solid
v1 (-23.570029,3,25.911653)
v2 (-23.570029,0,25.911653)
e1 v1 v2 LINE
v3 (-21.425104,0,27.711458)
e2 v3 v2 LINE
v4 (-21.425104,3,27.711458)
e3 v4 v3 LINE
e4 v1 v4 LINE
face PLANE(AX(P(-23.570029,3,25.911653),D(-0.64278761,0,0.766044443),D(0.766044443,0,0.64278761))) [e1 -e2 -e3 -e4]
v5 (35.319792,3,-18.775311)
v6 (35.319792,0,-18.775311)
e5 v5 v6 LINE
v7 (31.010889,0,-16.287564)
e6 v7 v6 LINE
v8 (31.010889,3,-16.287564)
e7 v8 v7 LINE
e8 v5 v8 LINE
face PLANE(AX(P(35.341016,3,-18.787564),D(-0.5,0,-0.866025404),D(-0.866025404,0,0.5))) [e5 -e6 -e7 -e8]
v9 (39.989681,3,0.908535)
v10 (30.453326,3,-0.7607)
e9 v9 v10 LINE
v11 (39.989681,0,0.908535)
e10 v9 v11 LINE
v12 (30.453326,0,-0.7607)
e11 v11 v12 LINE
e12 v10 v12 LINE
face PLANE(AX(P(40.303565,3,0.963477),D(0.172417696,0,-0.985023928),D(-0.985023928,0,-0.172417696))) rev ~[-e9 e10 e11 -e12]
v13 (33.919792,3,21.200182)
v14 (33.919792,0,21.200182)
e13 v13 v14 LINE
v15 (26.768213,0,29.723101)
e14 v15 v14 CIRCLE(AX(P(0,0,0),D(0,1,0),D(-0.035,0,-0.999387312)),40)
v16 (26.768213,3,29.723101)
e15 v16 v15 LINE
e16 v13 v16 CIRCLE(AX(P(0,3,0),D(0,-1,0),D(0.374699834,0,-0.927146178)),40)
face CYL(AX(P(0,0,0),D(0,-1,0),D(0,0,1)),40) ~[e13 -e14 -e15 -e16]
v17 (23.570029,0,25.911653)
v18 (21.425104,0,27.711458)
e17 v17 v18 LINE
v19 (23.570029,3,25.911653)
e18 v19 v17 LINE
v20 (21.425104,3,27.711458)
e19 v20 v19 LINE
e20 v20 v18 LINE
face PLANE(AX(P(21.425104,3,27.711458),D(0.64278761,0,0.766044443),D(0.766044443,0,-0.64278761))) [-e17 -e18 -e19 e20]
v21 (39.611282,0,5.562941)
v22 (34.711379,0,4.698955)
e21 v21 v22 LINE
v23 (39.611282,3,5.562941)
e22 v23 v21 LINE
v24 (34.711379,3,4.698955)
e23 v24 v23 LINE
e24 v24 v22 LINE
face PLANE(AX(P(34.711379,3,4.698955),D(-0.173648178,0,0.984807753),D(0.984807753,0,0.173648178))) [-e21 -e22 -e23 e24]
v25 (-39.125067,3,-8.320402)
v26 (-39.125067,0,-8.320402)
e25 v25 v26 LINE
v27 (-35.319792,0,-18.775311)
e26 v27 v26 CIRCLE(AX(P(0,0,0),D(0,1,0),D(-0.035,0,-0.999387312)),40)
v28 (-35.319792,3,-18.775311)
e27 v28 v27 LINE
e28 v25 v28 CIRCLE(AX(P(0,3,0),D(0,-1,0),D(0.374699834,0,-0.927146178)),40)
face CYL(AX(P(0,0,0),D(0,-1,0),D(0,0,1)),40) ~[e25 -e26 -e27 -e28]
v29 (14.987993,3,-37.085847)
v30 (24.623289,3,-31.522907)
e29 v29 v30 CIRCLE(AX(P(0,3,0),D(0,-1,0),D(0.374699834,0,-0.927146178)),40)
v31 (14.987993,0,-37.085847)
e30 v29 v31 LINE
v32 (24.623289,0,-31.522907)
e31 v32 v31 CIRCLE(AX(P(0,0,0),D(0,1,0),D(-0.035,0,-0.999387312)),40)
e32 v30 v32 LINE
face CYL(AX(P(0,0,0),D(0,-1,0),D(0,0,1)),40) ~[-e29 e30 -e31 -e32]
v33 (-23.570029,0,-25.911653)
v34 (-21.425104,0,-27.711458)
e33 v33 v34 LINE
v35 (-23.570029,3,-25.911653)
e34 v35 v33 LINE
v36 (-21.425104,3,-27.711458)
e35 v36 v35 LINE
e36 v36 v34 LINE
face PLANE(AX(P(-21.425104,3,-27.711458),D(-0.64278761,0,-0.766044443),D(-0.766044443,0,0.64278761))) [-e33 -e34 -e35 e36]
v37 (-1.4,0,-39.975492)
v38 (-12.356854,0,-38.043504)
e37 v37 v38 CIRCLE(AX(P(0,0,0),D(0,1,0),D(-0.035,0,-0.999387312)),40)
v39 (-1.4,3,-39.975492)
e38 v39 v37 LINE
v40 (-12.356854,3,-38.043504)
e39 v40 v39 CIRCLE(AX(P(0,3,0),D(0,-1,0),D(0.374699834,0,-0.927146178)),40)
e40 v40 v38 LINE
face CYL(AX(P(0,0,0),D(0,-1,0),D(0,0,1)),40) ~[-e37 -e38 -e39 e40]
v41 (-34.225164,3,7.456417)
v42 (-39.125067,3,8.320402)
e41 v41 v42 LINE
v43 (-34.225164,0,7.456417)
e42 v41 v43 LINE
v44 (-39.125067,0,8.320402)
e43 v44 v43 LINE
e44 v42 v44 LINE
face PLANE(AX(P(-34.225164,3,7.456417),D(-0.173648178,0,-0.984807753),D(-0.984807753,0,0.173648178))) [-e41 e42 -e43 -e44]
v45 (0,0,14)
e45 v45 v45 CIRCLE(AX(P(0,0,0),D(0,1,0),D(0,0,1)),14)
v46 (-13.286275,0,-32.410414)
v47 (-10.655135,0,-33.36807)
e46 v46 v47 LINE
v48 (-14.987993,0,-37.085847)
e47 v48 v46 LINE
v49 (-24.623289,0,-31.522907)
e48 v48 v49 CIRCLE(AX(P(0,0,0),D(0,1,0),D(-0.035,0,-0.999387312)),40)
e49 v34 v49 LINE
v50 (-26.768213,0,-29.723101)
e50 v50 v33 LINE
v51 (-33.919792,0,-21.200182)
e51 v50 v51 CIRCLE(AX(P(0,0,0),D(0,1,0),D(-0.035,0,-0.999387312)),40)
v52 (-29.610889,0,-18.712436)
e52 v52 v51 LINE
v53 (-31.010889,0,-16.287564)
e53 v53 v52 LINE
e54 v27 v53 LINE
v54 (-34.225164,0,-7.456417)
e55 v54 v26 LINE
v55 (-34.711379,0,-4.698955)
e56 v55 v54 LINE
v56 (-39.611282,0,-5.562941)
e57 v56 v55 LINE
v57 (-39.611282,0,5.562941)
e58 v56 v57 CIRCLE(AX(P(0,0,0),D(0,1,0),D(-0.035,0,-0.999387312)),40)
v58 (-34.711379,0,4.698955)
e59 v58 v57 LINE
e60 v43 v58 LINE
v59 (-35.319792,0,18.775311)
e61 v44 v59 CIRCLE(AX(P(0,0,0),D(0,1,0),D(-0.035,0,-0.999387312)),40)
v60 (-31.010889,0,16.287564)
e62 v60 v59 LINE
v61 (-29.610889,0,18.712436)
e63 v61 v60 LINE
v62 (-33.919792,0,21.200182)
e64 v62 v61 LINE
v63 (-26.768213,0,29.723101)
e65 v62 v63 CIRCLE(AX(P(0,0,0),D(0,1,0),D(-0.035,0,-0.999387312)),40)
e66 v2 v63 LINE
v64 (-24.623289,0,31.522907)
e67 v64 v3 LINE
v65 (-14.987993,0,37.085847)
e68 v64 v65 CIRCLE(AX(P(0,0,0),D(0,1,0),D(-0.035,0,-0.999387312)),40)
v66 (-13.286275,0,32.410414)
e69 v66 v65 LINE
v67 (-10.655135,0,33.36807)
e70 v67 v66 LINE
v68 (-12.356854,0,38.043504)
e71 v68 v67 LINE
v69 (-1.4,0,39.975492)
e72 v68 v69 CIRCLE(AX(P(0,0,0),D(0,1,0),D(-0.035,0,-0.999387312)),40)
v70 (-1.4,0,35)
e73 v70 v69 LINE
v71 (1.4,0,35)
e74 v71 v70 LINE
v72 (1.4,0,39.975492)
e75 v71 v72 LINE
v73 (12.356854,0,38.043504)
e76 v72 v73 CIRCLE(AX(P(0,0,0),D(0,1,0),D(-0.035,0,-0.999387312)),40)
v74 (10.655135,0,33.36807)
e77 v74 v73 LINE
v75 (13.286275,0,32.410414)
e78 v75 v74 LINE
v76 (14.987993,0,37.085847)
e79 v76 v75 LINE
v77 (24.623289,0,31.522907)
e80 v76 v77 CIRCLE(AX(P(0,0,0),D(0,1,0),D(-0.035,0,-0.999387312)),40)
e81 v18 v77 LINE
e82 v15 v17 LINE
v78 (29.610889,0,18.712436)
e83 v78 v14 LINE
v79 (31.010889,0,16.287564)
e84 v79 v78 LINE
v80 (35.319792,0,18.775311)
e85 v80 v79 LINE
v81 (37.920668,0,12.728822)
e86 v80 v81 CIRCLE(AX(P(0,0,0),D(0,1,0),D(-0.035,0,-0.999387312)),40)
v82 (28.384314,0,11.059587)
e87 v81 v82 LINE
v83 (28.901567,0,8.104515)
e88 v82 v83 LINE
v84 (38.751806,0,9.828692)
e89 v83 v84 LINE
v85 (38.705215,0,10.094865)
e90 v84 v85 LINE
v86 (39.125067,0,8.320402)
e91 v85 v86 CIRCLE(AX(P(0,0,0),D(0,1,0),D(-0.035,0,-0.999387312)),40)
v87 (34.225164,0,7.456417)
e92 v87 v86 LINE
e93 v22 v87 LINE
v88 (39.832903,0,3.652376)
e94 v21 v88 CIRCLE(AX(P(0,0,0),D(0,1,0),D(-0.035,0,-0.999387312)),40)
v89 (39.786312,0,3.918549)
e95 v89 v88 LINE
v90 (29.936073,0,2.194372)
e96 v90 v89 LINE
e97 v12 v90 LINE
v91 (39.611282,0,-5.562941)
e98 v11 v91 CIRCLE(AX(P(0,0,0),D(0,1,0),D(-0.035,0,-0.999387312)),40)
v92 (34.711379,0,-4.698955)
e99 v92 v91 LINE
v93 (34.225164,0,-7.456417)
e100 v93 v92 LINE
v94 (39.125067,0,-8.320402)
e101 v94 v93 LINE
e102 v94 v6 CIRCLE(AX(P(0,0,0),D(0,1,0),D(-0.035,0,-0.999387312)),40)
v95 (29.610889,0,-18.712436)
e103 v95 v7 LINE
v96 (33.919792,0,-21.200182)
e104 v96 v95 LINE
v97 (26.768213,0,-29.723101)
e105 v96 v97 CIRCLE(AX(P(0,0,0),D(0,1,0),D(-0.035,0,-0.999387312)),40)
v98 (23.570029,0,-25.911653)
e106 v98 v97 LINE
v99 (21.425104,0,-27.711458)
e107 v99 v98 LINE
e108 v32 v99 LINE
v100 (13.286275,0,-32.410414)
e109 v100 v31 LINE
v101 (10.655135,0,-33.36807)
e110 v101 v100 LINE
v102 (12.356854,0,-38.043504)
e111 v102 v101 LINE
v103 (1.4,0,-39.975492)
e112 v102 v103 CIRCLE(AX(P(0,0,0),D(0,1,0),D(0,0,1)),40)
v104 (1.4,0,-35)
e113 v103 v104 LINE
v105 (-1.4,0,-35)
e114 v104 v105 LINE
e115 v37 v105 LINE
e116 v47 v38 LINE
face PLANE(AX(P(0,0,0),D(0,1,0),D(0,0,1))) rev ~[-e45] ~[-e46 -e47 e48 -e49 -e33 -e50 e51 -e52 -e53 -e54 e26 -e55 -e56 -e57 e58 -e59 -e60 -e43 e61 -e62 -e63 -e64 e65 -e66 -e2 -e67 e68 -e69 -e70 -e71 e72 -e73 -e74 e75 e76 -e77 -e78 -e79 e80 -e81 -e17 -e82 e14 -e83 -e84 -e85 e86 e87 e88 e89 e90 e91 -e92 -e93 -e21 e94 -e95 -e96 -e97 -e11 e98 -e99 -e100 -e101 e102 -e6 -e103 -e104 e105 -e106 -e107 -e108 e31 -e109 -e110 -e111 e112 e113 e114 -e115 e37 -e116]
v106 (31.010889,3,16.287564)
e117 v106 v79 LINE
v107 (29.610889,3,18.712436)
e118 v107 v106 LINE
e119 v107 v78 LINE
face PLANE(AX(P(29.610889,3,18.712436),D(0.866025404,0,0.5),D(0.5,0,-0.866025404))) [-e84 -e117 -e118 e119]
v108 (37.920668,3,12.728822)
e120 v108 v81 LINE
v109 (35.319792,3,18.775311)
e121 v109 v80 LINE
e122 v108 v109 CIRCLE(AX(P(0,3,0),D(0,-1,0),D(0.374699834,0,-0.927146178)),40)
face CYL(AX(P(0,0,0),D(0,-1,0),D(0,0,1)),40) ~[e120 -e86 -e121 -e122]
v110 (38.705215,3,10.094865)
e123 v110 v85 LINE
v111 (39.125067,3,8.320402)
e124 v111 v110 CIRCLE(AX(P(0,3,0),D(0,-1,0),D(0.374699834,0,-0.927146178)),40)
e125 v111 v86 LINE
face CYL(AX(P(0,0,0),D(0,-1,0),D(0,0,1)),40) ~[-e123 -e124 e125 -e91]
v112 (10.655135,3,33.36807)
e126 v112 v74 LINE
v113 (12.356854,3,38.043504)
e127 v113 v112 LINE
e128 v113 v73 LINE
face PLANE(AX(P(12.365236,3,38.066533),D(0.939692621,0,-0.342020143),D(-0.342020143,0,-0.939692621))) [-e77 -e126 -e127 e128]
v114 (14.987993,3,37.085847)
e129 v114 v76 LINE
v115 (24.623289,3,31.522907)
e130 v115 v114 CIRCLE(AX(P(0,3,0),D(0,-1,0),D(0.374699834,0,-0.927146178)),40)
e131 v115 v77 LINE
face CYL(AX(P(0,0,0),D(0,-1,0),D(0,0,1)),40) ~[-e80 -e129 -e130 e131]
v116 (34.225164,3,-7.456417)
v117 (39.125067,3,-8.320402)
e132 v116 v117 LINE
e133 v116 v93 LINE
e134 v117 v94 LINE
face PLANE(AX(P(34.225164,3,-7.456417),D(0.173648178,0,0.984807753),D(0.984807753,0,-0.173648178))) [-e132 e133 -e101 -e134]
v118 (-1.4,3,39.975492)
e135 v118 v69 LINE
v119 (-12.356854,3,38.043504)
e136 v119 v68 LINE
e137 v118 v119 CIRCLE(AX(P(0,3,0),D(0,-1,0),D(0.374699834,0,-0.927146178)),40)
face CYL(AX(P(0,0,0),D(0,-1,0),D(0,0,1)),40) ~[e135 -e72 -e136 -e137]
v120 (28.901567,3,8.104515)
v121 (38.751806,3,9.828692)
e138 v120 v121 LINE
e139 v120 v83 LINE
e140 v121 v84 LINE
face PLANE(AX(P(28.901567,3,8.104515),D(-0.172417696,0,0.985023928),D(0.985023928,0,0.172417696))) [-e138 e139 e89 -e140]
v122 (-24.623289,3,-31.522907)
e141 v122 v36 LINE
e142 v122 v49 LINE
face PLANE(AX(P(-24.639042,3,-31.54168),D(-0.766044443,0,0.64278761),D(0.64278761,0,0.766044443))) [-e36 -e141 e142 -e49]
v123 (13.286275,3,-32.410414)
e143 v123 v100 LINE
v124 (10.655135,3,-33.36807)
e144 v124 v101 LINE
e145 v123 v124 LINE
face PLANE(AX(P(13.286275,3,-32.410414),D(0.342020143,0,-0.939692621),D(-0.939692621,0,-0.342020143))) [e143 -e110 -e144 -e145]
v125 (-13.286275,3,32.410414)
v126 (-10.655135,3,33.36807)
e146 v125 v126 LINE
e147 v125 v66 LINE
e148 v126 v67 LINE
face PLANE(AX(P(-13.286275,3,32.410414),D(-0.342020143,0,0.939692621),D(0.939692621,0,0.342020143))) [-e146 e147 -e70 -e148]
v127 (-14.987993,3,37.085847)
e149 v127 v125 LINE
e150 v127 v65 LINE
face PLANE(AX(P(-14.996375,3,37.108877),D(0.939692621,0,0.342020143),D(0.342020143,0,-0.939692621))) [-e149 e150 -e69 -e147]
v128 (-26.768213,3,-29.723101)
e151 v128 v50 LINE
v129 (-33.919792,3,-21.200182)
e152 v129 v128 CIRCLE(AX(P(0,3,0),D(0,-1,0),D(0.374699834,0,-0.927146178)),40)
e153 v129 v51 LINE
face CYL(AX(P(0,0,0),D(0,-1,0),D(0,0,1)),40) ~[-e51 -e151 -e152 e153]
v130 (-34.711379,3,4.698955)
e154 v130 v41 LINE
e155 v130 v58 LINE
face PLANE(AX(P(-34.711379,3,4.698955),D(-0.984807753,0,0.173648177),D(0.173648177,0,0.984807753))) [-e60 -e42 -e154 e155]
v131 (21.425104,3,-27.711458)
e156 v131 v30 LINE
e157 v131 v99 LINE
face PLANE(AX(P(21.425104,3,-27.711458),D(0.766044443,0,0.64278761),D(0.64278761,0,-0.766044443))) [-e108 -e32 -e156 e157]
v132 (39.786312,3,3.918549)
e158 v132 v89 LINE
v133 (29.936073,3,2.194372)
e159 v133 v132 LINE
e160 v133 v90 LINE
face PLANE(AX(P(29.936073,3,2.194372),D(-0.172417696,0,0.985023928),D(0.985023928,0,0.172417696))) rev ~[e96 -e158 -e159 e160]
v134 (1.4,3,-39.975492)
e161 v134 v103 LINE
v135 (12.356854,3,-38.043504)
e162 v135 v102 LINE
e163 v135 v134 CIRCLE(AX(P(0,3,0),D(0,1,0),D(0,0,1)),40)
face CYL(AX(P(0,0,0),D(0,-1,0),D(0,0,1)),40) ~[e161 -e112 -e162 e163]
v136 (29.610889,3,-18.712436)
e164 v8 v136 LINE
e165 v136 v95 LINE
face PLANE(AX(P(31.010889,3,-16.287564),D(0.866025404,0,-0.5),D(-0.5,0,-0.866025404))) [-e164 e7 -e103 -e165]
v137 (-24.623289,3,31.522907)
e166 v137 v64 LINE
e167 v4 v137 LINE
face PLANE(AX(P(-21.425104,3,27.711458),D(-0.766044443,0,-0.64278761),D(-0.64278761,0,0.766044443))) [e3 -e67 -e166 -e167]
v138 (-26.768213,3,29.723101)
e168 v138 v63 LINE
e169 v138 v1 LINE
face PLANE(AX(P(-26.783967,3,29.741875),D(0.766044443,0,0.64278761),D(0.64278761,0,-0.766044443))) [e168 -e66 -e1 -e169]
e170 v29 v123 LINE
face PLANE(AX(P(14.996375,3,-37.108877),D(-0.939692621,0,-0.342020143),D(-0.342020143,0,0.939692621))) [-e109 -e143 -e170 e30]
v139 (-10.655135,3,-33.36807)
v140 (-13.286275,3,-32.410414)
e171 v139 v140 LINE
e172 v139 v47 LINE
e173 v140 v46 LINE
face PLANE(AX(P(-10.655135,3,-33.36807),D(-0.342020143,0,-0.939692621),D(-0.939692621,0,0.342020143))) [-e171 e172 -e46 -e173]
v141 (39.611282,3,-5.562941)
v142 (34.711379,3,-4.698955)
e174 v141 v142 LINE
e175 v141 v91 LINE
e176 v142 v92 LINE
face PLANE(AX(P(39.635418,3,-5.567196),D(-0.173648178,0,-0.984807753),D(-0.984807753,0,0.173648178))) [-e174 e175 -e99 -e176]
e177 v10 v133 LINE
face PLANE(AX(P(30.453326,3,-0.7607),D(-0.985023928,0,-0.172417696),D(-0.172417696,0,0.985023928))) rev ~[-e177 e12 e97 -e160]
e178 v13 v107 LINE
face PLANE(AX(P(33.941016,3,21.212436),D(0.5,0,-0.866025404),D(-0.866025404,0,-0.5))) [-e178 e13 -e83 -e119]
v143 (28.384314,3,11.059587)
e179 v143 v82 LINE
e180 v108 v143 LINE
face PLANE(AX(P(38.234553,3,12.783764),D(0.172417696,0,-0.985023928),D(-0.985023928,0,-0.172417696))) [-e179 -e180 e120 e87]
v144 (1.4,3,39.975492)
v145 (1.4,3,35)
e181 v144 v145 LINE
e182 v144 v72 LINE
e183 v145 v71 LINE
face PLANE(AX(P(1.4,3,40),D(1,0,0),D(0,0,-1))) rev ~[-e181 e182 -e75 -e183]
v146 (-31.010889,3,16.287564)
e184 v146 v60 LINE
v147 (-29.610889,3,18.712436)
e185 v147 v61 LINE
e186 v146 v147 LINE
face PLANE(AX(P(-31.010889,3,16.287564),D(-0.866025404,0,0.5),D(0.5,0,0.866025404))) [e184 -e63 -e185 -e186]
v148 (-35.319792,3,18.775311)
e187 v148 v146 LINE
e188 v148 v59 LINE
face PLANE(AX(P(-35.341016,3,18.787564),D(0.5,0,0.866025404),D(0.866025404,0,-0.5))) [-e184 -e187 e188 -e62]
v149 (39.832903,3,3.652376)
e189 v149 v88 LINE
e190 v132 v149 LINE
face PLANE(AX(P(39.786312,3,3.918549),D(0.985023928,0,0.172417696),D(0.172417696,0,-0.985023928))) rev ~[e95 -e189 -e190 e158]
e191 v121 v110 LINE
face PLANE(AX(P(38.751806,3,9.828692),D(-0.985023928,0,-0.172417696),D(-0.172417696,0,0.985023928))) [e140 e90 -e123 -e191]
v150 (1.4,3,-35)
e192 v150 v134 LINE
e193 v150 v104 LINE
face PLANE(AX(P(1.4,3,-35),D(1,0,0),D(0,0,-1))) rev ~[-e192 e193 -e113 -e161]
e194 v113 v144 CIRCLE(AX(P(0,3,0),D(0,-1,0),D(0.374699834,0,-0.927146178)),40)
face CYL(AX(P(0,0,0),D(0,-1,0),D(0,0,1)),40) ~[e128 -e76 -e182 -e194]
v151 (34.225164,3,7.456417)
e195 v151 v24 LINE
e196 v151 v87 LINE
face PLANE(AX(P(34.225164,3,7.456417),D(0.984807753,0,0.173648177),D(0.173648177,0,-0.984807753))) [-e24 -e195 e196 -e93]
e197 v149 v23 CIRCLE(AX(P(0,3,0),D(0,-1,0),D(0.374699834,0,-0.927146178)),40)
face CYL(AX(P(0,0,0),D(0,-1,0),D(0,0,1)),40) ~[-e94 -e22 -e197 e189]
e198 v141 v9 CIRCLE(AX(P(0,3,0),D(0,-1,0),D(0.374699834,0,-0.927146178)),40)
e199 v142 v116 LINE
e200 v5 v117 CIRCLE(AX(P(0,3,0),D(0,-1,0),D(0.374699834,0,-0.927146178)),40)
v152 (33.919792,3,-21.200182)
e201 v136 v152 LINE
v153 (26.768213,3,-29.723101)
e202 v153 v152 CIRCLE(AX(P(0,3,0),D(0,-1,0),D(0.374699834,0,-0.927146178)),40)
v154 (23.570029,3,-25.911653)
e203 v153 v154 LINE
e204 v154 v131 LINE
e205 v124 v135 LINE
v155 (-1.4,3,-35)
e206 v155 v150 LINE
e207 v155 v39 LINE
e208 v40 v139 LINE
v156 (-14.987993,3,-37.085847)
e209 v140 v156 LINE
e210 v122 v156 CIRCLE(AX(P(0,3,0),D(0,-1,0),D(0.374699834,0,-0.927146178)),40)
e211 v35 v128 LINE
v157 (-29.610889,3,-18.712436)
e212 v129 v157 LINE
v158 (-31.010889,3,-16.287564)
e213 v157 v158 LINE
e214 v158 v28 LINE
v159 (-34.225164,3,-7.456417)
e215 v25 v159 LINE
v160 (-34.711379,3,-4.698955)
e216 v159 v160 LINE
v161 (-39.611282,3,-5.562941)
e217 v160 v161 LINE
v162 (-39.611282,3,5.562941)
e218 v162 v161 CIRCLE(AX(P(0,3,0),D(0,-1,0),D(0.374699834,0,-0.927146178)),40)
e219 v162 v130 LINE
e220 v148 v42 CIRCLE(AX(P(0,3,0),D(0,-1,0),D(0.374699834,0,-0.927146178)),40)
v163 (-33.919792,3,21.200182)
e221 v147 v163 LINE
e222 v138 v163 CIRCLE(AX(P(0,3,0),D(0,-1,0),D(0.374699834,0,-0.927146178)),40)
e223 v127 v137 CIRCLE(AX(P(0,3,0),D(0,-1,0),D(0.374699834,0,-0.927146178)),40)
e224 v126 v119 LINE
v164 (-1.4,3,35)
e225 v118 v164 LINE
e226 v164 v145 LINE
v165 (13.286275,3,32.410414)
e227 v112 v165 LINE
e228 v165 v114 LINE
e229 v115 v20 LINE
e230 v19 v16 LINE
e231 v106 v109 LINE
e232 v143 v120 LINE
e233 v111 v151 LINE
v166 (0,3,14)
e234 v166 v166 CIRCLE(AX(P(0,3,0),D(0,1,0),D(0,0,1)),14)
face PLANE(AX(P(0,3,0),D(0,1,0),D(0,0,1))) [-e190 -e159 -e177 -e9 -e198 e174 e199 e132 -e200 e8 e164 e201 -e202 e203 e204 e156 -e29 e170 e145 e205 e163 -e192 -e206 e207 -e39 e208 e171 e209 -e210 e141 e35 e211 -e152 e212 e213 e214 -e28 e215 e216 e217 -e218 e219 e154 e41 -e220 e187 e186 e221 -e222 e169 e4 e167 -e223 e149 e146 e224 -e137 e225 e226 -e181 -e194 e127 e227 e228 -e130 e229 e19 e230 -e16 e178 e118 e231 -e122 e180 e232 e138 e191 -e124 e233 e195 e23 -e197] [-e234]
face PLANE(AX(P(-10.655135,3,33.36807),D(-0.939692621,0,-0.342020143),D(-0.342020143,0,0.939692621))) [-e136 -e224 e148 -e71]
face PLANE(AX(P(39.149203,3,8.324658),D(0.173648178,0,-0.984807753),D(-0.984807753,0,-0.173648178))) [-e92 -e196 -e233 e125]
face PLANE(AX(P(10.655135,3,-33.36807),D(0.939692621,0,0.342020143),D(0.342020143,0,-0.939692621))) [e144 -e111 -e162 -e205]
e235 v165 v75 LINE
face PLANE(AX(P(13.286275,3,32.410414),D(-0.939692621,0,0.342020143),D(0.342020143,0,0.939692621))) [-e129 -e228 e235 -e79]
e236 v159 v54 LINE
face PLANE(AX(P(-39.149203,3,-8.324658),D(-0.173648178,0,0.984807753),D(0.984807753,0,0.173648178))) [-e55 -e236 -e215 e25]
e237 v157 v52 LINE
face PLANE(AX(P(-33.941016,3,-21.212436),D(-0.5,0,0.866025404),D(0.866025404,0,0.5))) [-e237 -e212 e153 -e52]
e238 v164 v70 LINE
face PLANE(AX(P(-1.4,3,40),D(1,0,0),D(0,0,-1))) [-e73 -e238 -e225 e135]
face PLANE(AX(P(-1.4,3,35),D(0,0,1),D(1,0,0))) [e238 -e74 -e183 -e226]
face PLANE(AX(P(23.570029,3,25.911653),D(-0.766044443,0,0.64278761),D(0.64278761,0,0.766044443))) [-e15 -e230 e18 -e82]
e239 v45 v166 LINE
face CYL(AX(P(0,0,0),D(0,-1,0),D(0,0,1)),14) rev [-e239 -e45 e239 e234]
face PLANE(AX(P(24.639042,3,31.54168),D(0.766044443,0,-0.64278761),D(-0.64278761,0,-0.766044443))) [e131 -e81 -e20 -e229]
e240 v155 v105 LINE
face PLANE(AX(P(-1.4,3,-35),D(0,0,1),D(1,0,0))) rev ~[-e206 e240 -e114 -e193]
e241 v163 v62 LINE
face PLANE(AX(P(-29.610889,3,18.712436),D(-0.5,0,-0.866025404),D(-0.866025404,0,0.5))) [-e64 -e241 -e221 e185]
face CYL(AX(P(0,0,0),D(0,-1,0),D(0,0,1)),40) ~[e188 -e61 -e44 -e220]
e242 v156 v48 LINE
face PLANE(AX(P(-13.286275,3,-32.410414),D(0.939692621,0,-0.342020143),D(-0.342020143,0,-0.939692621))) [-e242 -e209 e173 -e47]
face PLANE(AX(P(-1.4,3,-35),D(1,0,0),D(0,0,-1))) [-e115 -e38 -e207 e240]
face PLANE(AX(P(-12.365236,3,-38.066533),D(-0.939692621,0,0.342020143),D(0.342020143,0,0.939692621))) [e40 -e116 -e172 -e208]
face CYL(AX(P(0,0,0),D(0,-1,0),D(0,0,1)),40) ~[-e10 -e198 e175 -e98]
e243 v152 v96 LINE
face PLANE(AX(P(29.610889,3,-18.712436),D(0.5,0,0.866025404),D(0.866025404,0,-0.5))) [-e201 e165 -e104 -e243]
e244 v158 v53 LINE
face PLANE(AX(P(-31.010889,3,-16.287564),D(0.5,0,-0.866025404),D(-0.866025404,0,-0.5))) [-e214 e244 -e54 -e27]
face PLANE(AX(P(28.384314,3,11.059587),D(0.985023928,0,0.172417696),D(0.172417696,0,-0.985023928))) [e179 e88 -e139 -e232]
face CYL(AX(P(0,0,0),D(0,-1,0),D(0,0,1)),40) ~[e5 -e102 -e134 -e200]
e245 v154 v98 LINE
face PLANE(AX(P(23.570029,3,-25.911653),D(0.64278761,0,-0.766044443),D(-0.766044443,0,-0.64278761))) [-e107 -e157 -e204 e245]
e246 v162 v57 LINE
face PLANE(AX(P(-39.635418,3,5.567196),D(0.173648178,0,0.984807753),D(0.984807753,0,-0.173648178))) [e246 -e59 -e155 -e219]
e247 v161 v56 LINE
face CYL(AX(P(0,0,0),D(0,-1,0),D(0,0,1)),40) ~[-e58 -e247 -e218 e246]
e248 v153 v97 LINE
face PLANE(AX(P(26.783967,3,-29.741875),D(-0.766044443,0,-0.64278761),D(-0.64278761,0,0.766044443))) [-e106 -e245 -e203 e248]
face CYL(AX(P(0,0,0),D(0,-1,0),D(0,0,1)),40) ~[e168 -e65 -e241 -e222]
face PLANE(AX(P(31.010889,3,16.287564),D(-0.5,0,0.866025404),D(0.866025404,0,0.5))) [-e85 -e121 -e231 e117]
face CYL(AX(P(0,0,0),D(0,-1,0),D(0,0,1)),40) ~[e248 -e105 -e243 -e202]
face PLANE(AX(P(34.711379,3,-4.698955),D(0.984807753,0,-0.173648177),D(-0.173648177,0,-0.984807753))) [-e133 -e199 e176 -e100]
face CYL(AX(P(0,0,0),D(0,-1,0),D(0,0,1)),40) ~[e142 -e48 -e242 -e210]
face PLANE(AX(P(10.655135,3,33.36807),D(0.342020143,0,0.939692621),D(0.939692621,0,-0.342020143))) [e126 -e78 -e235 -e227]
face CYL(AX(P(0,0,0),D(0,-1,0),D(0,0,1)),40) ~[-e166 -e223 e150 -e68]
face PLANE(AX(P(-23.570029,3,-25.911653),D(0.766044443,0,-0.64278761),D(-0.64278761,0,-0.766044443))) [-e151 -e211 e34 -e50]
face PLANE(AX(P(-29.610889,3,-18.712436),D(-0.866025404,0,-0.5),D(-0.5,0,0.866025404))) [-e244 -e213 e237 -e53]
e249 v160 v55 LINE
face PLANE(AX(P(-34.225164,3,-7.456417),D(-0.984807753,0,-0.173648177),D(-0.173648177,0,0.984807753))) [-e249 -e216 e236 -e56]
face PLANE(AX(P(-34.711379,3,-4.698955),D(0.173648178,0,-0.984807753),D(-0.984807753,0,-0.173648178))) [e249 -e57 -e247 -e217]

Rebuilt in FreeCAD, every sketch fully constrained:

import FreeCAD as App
import Part
import Sketcher

V = App.Vector
Q = App.Units.Quantity


def add_polygon(sketch, points):
    """Adds a closed chain of lines whose ends are joined by coincident constraints."""
    first, n = sketch.GeometryCount, len(points)
    for a, b in zip(points, points[1:] + points[:1]):
        sketch.addGeometry(Part.LineSegment(App.Vector(*a, 0), App.Vector(*b, 0)), False)
    for i in range(n):
        sketch.addConstraint(Sketcher.Constraint("Coincident", first + i, 2, first + (i + 1) % n, 1))

doc = App.newDocument("Part")
body = doc.addObject("PartDesign::Body", "Body")

# Sketch on XZ plane
sketch1 = body.newObject("Sketcher::SketchObject", "Sketch")
sketch1.AttachmentSupport = (doc.getObject("XZ_Plane"), [""])
sketch1.MapMode = "FlatFace"
sketch1.addGeometry(Part.Circle(V(0, 0, 0), V(0, 0, 1), 40), False)
sketch1.addGeometry(Part.Circle(V(0, 0, 0), V(0, 0, 1), 14), False)
sketch1.addConstraint(Sketcher.Constraint("Coincident", 0, 3, -1, 1))
sketch1.addConstraint(Sketcher.Constraint("Coincident", 1, 3, -1, 1))
sketch1.addConstraint(Sketcher.Constraint("Diameter", 0, 80.0))
sketch1.addConstraint(Sketcher.Constraint("Diameter", 1, 28.0))
pad1 = body.newObject("PartDesign::Pad", "Pad")
pad1.Profile = sketch1
pad1.Length = 3
pad1.Reversed = True

# Sketch on XZ plane
sketch2 = body.newObject("Sketcher::SketchObject", "Sketch001")
sketch2.AttachmentSupport = (doc.getObject("XZ_Plane"), [""])
sketch2.MapMode = "FlatFace"
sketch2.AttachmentOffset = App.Placement(V(0, 0, -3), App.Rotation())
add_polygon(sketch2, [(13.3, -32.4), (15, -37.1), (12.4, -38.1), (10.7, -33.4)])  # lines 0-3
sketch2.addConstraint(Sketcher.Constraint("Perpendicular", 0, 1))
sketch2.addConstraint(Sketcher.Constraint("Perpendicular", 1, 2))
sketch2.addConstraint(Sketcher.Constraint("Perpendicular", 2, 3))
sketch2.addConstraint(Sketcher.Constraint("Angle", 0, Q("-70 deg")))
sketch2.addConstraint(Sketcher.Constraint("Distance", 0, 5.0))
sketch2.addConstraint(Sketcher.Constraint("Distance", 1, 2.8))
sketch2.addConstraint(Sketcher.Constraint("DistanceY", 2, 2, -1, 1, 33.36807))
sketch2.addConstraint(Sketcher.Constraint("DistanceX", -1, 1, 0, 2, 14.996375))
pocket1 = body.newObject("PartDesign::Pocket", "Pocket")
pocket1.Profile = sketch2
pocket1.Type = "UpToFirst"
pocket1.Reversed = True

# Sketch on XZ plane
sketch3 = body.newObject("Sketcher::SketchObject", "Sketch002")
sketch3.AttachmentSupport = (doc.getObject("XZ_Plane"), [""])
sketch3.MapMode = "FlatFace"
sketch3.AttachmentOffset = App.Placement(V(0, 0, -3), App.Rotation())
add_polygon(sketch3, [(-1.4, -40), (-1.4, -35), (1.4, -35), (1.4, -40)])  # lines 0-3
sketch3.addConstraint(Sketcher.Constraint("Vertical", 0))
sketch3.addConstraint(Sketcher.Constraint("Horizontal", 1))
sketch3.addConstraint(Sketcher.Constraint("Vertical", 2))
sketch3.addConstraint(Sketcher.Constraint("Horizontal", 3))
sketch3.addConstraint(Sketcher.Constraint("DistanceY", 0, 1, 0, 2, 5.0))
sketch3.addConstraint(Sketcher.Constraint("DistanceX", 1, 1, 1, 2, 2.8))
sketch3.addConstraint(Sketcher.Constraint("DistanceY", 0, 2, -1, 1, 35.0))
sketch3.addConstraint(Sketcher.Constraint("DistanceX", 0, 2, -1, 1, 1.4))
pocket2 = body.newObject("PartDesign::Pocket", "Pocket001")
pocket2.Profile = sketch3
pocket2.Type = "UpToFirst"
pocket2.Reversed = True

# Sketch on XZ plane
sketch4 = body.newObject("Sketcher::SketchObject", "Sketch003")
sketch4.AttachmentSupport = (doc.getObject("XZ_Plane"), [""])
sketch4.MapMode = "FlatFace"
sketch4.AttachmentOffset = App.Placement(V(0, 0, -3), App.Rotation())
add_polygon(sketch4, [(23.6, -25.9), (26.8, -29.7), (24.6, -31.5), (21.4, -27.7)])  # lines 0-3
sketch4.addConstraint(Sketcher.Constraint("Perpendicular", 0, 1))
sketch4.addConstraint(Sketcher.Constraint("Perpendicular", 1, 2))
sketch4.addConstraint(Sketcher.Constraint("Perpendicular", 2, 3))
sketch4.addConstraint(Sketcher.Constraint("Angle", 0, Q("-50 deg")))
sketch4.addConstraint(Sketcher.Constraint("Distance", 0, 5.0))
sketch4.addConstraint(Sketcher.Constraint("Distance", 1, 2.8))
sketch4.addConstraint(Sketcher.Constraint("DistanceY", 1, 2, -1, 1, 31.54168))
sketch4.addConstraint(Sketcher.Constraint("DistanceX", -1, 1, 3, 2, 23.570029))
pocket3 = body.newObject("PartDesign::Pocket", "Pocket002")
pocket3.Profile = sketch4
pocket3.Type = "UpToFirst"
pocket3.Reversed = True

# Sketch on XZ plane
sketch5 = body.newObject("Sketcher::SketchObject", "Sketch004")
sketch5.AttachmentSupport = (doc.getObject("XZ_Plane"), [""])
sketch5.MapMode = "FlatFace"
sketch5.AttachmentOffset = App.Placement(V(0, 0, -3), App.Rotation())
add_polygon(sketch5, [(31, -16.3), (35.3, -18.8), (33.9, -21.2), (29.6, -18.7)])  # lines 0-3
sketch5.addConstraint(Sketcher.Constraint("Perpendicular", 0, 1))
sketch5.addConstraint(Sketcher.Constraint("Perpendicular", 1, 2))
sketch5.addConstraint(Sketcher.Constraint("Perpendicular", 2, 3))
sketch5.addConstraint(Sketcher.Constraint("Angle", 0, Q("-30 deg")))
sketch5.addConstraint(Sketcher.Constraint("Distance", 0, 5.0))
sketch5.addConstraint(Sketcher.Constraint("Distance", 1, 2.8))
sketch5.addConstraint(Sketcher.Constraint("DistanceX", -1, 1, 2, 2, 29.610889))
sketch5.addConstraint(Sketcher.Constraint("DistanceY", 0, 2, -1, 1, 18.787564))
pocket4 = body.newObject("PartDesign::Pocket", "Pocket003")
pocket4.Profile = sketch5
pocket4.Type = "UpToFirst"
pocket4.Reversed = True

# Sketch on XZ plane
sketch6 = body.newObject("Sketcher::SketchObject", "Sketch005")
sketch6.AttachmentSupport = (doc.getObject("XZ_Plane"), [""])
sketch6.MapMode = "FlatFace"
sketch6.AttachmentOffset = App.Placement(V(0, 0, -3), App.Rotation())
add_polygon(sketch6, [(34.7, -4.7), (39.6, -5.6), (39.1, -8.3), (34.2, -7.5)])  # lines 0-3
sketch6.addConstraint(Sketcher.Constraint("Perpendicular", 0, 1))
sketch6.addConstraint(Sketcher.Constraint("Perpendicular", 1, 2))
sketch6.addConstraint(Sketcher.Constraint("Perpendicular", 2, 3))
sketch6.addConstraint(Sketcher.Constraint("Angle", 0, Q("-10 deg")))
sketch6.addConstraint(Sketcher.Constraint("Distance", 0, 5.0))
sketch6.addConstraint(Sketcher.Constraint("Distance", 1, 2.8))
sketch6.addConstraint(Sketcher.Constraint("DistanceX", -1, 1, 3, 2, 34.711379))
sketch6.addConstraint(Sketcher.Constraint("DistanceY", 0, 2, -1, 1, 5.567196))
pocket5 = body.newObject("PartDesign::Pocket", "Pocket004")
pocket5.Profile = sketch6
pocket5.Type = "UpToFirst"
pocket5.Reversed = True

# Sketch on XZ plane
sketch7 = body.newObject("Sketcher::SketchObject", "Sketch006")
sketch7.AttachmentSupport = (doc.getObject("XZ_Plane"), [""])
sketch7.MapMode = "FlatFace"
sketch7.AttachmentOffset = App.Placement(V(0, 0, -3), App.Rotation())
add_polygon(sketch7, [(34.2, 7.5), (39.1, 8.3), (39.6, 5.6), (34.7, 4.7)])  # lines 0-3
sketch7.addConstraint(Sketcher.Constraint("Perpendicular", 0, 1))
sketch7.addConstraint(Sketcher.Constraint("Perpendicular", 1, 2))
sketch7.addConstraint(Sketcher.Constraint("Perpendicular", 2, 3))
sketch7.addConstraint(Sketcher.Constraint("Angle", 0, Q("10 deg")))
sketch7.addConstraint(Sketcher.Constraint("Distance", 0, 5.0))
sketch7.addConstraint(Sketcher.Constraint("Distance", 1, 2.8))
sketch7.addConstraint(Sketcher.Constraint("DistanceX", -1, 1, 2, 2, 34.711379))
sketch7.addConstraint(Sketcher.Constraint("DistanceY", -1, 1, 0, 2, 8.324658))
pocket6 = body.newObject("PartDesign::Pocket", "Pocket005")
pocket6.Profile = sketch7
pocket6.Type = "UpToFirst"
pocket6.Reversed = True

# Sketch on XZ plane
sketch8 = body.newObject("Sketcher::SketchObject", "Sketch007")
sketch8.AttachmentSupport = (doc.getObject("XZ_Plane"), [""])
sketch8.MapMode = "FlatFace"
sketch8.AttachmentOffset = App.Placement(V(0, 0, -3), App.Rotation())
add_polygon(sketch8, [(29.6, 18.7), (33.9, 21.2), (35.3, 18.8), (31, 16.3)])  # lines 0-3
sketch8.addConstraint(Sketcher.Constraint("Perpendicular", 0, 1))
sketch8.addConstraint(Sketcher.Constraint("Perpendicular", 1, 2))
sketch8.addConstraint(Sketcher.Constraint("Perpendicular", 2, 3))
sketch8.addConstraint(Sketcher.Constraint("Angle", 0, Q("30 deg")))
sketch8.addConstraint(Sketcher.Constraint("Distance", 0, 5.0))
sketch8.addConstraint(Sketcher.Constraint("Distance", 1, 2.8))
sketch8.addConstraint(Sketcher.Constraint("DistanceX", -1, 1, 2, 2, 31.010889))
sketch8.addConstraint(Sketcher.Constraint("DistanceY", -1, 1, 0, 2, 21.212436))
pocket7 = body.newObject("PartDesign::Pocket", "Pocket006")
pocket7.Profile = sketch8
pocket7.Type = "UpToFirst"
pocket7.Reversed = True

# Sketch on XZ plane
sketch9 = body.newObject("Sketcher::SketchObject", "Sketch008")
sketch9.AttachmentSupport = (doc.getObject("XZ_Plane"), [""])
sketch9.MapMode = "FlatFace"
sketch9.AttachmentOffset = App.Placement(V(0, 0, -3), App.Rotation())
add_polygon(sketch9, [(21.4, 27.7), (24.6, 31.5), (26.8, 29.7), (23.6, 25.9)])  # lines 0-3
sketch9.addConstraint(Sketcher.Constraint("Perpendicular", 0, 1))
sketch9.addConstraint(Sketcher.Constraint("Perpendicular", 1, 2))
sketch9.addConstraint(Sketcher.Constraint("Perpendicular", 2, 3))
sketch9.addConstraint(Sketcher.Constraint("Angle", 0, Q("50 deg")))
sketch9.addConstraint(Sketcher.Constraint("Distance", 0, 5.0))
sketch9.addConstraint(Sketcher.Constraint("Distance", 1, 2.8))
sketch9.addConstraint(Sketcher.Constraint("DistanceY", -1, 1, 0, 2, 31.54168))
sketch9.addConstraint(Sketcher.Constraint("DistanceX", -1, 1, 2, 2, 23.570029))
pocket8 = body.newObject("PartDesign::Pocket", "Pocket007")
pocket8.Profile = sketch9
pocket8.Type = "UpToFirst"
pocket8.Reversed = True

# Sketch on XZ plane
sketch10 = body.newObject("Sketcher::SketchObject", "Sketch009")
sketch10.AttachmentSupport = (doc.getObject("XZ_Plane"), [""])
sketch10.MapMode = "FlatFace"
sketch10.AttachmentOffset = App.Placement(V(0, 0, -3), App.Rotation())
add_polygon(sketch10, [(10.7, 33.4), (12.4, 38.1), (15, 37.1), (13.3, 32.4)])  # lines 0-3
sketch10.addConstraint(Sketcher.Constraint("Perpendicular", 0, 1))
sketch10.addConstraint(Sketcher.Constraint("Perpendicular", 1, 2))
sketch10.addConstraint(Sketcher.Constraint("Perpendicular", 2, 3))
sketch10.addConstraint(Sketcher.Constraint("Angle", 0, Q("70 deg")))
sketch10.addConstraint(Sketcher.Constraint("Distance", 0, 5.0))
sketch10.addConstraint(Sketcher.Constraint("Distance", 1, 2.8))
sketch10.addConstraint(Sketcher.Constraint("DistanceY", -1, 1, 3, 2, 33.36807))
sketch10.addConstraint(Sketcher.Constraint("DistanceX", -1, 1, 0, 2, 12.365236))
pocket9 = body.newObject("PartDesign::Pocket", "Pocket008")
pocket9.Profile = sketch10
pocket9.Type = "UpToFirst"
pocket9.Reversed = True

# Sketch on XZ plane
sketch11 = body.newObject("Sketcher::SketchObject", "Sketch010")
sketch11.AttachmentSupport = (doc.getObject("XZ_Plane"), [""])
sketch11.MapMode = "FlatFace"
sketch11.AttachmentOffset = App.Placement(V(0, 0, -3), App.Rotation())
add_polygon(sketch11, [(-1.4, 35), (-1.4, 40), (1.4, 40), (1.4, 35)])  # lines 0-3
sketch11.addConstraint(Sketcher.Constraint("Vertical", 0))
sketch11.addConstraint(Sketcher.Constraint("Horizontal", 1))
sketch11.addConstraint(Sketcher.Constraint("Vertical", 2))
sketch11.addConstraint(Sketcher.Constraint("Horizontal", 3))
sketch11.addConstraint(Sketcher.Constraint("DistanceY", 0, 1, 0, 2, 5.0))
sketch11.addConstraint(Sketcher.Constraint("DistanceX", 1, 1, 1, 2, 2.8))
sketch11.addConstraint(Sketcher.Constraint("DistanceY", -1, 1, 0, 2, 40.0))
sketch11.addConstraint(Sketcher.Constraint("DistanceX", 0, 2, -1, 1, 1.4))
pocket10 = body.newObject("PartDesign::Pocket", "Pocket009")
pocket10.Profile = sketch11
pocket10.Type = "UpToFirst"
pocket10.Reversed = True

# Sketch on XZ plane
sketch12 = body.newObject("Sketcher::SketchObject", "Sketch011")
sketch12.AttachmentSupport = (doc.getObject("XZ_Plane"), [""])
sketch12.MapMode = "FlatFace"
sketch12.AttachmentOffset = App.Placement(V(0, 0, -3), App.Rotation())
add_polygon(sketch12, [(-13.3, 32.4), (-15, 37.1), (-12.4, 38.1), (-10.7, 33.4)])  # lines 0-3
sketch12.addConstraint(Sketcher.Constraint("Perpendicular", 0, 1))
sketch12.addConstraint(Sketcher.Constraint("Perpendicular", 1, 2))
sketch12.addConstraint(Sketcher.Constraint("Perpendicular", 2, 3))
sketch12.addConstraint(Sketcher.Constraint("Angle", 0, Q("110 deg")))
sketch12.addConstraint(Sketcher.Constraint("Distance", 0, 5.0))
sketch12.addConstraint(Sketcher.Constraint("Distance", 1, 2.8))
sketch12.addConstraint(Sketcher.Constraint("DistanceY", -1, 1, 2, 2, 33.36807))
sketch12.addConstraint(Sketcher.Constraint("DistanceX", 0, 2, -1, 1, 14.996375))
pocket11 = body.newObject("PartDesign::Pocket", "Pocket010")
pocket11.Profile = sketch12
pocket11.Type = "UpToFirst"
pocket11.Reversed = True

# Sketch on XZ plane
sketch13 = body.newObject("Sketcher::SketchObject", "Sketch012")
sketch13.AttachmentSupport = (doc.getObject("XZ_Plane"), [""])
sketch13.MapMode = "FlatFace"
sketch13.AttachmentOffset = App.Placement(V(0, 0, -3), App.Rotation())
add_polygon(sketch13, [(-23.6, 25.9), (-26.8, 29.7), (-24.6, 31.5), (-21.4, 27.7)])  # lines 0-3
sketch13.addConstraint(Sketcher.Constraint("Perpendicular", 0, 1))
sketch13.addConstraint(Sketcher.Constraint("Perpendicular", 1, 2))
sketch13.addConstraint(Sketcher.Constraint("Perpendicular", 2, 3))
sketch13.addConstraint(Sketcher.Constraint("Angle", 0, Q("130 deg")))
sketch13.addConstraint(Sketcher.Constraint("Distance", 0, 5.0))
sketch13.addConstraint(Sketcher.Constraint("Distance", 1, 2.8))
sketch13.addConstraint(Sketcher.Constraint("DistanceY", -1, 1, 1, 2, 31.54168))
sketch13.addConstraint(Sketcher.Constraint("DistanceX", 3, 2, -1, 1, 23.570029))
pocket12 = body.newObject("PartDesign::Pocket", "Pocket011")
pocket12.Profile = sketch13
pocket12.Type = "UpToFirst"
pocket12.Reversed = True

# Sketch on XZ plane
sketch14 = body.newObject("Sketcher::SketchObject", "Sketch013")
sketch14.AttachmentSupport = (doc.getObject("XZ_Plane"), [""])
sketch14.MapMode = "FlatFace"
sketch14.AttachmentOffset = App.Placement(V(0, 0, -3), App.Rotation())
add_polygon(sketch14, [(-31, 16.3), (-35.3, 18.8), (-33.9, 21.2), (-29.6, 18.7)])  # lines 0-3
sketch14.addConstraint(Sketcher.Constraint("Perpendicular", 0, 1))
sketch14.addConstraint(Sketcher.Constraint("Perpendicular", 1, 2))
sketch14.addConstraint(Sketcher.Constraint("Perpendicular", 2, 3))
sketch14.addConstraint(Sketcher.Constraint("Angle", 0, Q("150 deg")))
sketch14.addConstraint(Sketcher.Constraint("Distance", 0, 5.0))
sketch14.addConstraint(Sketcher.Constraint("Distance", 1, 2.8))
sketch14.addConstraint(Sketcher.Constraint("DistanceX", 2, 2, -1, 1, 29.610889))
sketch14.addConstraint(Sketcher.Constraint("DistanceY", -1, 1, 0, 2, 18.787564))
pocket13 = body.newObject("PartDesign::Pocket", "Pocket012")
pocket13.Profile = sketch14
pocket13.Type = "UpToFirst"
pocket13.Reversed = True

# Sketch on XZ plane
sketch15 = body.newObject("Sketcher::SketchObject", "Sketch014")
sketch15.AttachmentSupport = (doc.getObject("XZ_Plane"), [""])
sketch15.MapMode = "FlatFace"
sketch15.AttachmentOffset = App.Placement(V(0, 0, -3), App.Rotation())
add_polygon(sketch15, [(-34.7, 4.7), (-39.6, 5.6), (-39.1, 8.3), (-34.2, 7.5)])  # lines 0-3
sketch15.addConstraint(Sketcher.Constraint("Perpendicular", 0, 1))
sketch15.addConstraint(Sketcher.Constraint("Perpendicular", 1, 2))
sketch15.addConstraint(Sketcher.Constraint("Perpendicular", 2, 3))
sketch15.addConstraint(Sketcher.Constraint("Angle", 0, Q("170 deg")))
sketch15.addConstraint(Sketcher.Constraint("Distance", 0, 5.0))
sketch15.addConstraint(Sketcher.Constraint("Distance", 1, 2.8))
sketch15.addConstraint(Sketcher.Constraint("DistanceX", 3, 2, -1, 1, 34.711379))
sketch15.addConstraint(Sketcher.Constraint("DistanceY", -1, 1, 0, 2, 5.567196))
pocket14 = body.newObject("PartDesign::Pocket", "Pocket013")
pocket14.Profile = sketch15
pocket14.Type = "UpToFirst"
pocket14.Reversed = True

# Sketch on XZ plane
sketch16 = body.newObject("Sketcher::SketchObject", "Sketch015")
sketch16.AttachmentSupport = (doc.getObject("XZ_Plane"), [""])
sketch16.MapMode = "FlatFace"
sketch16.AttachmentOffset = App.Placement(V(0, 0, -3), App.Rotation())
add_polygon(sketch16, [(-34.2, -7.5), (-39.1, -8.3), (-39.6, -5.6), (-34.7, -4.7)])  # lines 0-3
sketch16.addConstraint(Sketcher.Constraint("Perpendicular", 0, 1))
sketch16.addConstraint(Sketcher.Constraint("Perpendicular", 1, 2))
sketch16.addConstraint(Sketcher.Constraint("Perpendicular", 2, 3))
sketch16.addConstraint(Sketcher.Constraint("Angle", 0, Q("-170 deg")))
sketch16.addConstraint(Sketcher.Constraint("Distance", 0, 5.0))
sketch16.addConstraint(Sketcher.Constraint("Distance", 1, 2.8))
sketch16.addConstraint(Sketcher.Constraint("DistanceX", 2, 2, -1, 1, 34.711379))
sketch16.addConstraint(Sketcher.Constraint("DistanceY", 0, 2, -1, 1, 8.324658))
pocket15 = body.newObject("PartDesign::Pocket", "Pocket014")
pocket15.Profile = sketch16
pocket15.Type = "UpToFirst"
pocket15.Reversed = True

# Sketch on XZ plane
sketch17 = body.newObject("Sketcher::SketchObject", "Sketch016")
sketch17.AttachmentSupport = (doc.getObject("XZ_Plane"), [""])
sketch17.MapMode = "FlatFace"
sketch17.AttachmentOffset = App.Placement(V(0, 0, -3), App.Rotation())
add_polygon(sketch17, [(-29.6, -18.7), (-33.9, -21.2), (-35.3, -18.8), (-31, -16.3)])  # lines 0-3
sketch17.addConstraint(Sketcher.Constraint("Perpendicular", 0, 1))
sketch17.addConstraint(Sketcher.Constraint("Perpendicular", 1, 2))
sketch17.addConstraint(Sketcher.Constraint("Perpendicular", 2, 3))
sketch17.addConstraint(Sketcher.Constraint("Angle", 0, Q("-150 deg")))
sketch17.addConstraint(Sketcher.Constraint("Distance", 0, 5.0))
sketch17.addConstraint(Sketcher.Constraint("Distance", 1, 2.8))
sketch17.addConstraint(Sketcher.Constraint("DistanceX", 2, 2, -1, 1, 31.010889))
sketch17.addConstraint(Sketcher.Constraint("DistanceY", 0, 2, -1, 1, 21.212436))
pocket16 = body.newObject("PartDesign::Pocket", "Pocket015")
pocket16.Profile = sketch17
pocket16.Type = "UpToFirst"
pocket16.Reversed = True

# Sketch on XZ plane
sketch18 = body.newObject("Sketcher::SketchObject", "Sketch017")
sketch18.AttachmentSupport = (doc.getObject("XZ_Plane"), [""])
sketch18.MapMode = "FlatFace"
sketch18.AttachmentOffset = App.Placement(V(0, 0, -3), App.Rotation())
add_polygon(sketch18, [(-21.4, -27.7), (-24.6, -31.5), (-26.8, -29.7), (-23.6, -25.9)])  # lines 0-3
sketch18.addConstraint(Sketcher.Constraint("Perpendicular", 0, 1))
sketch18.addConstraint(Sketcher.Constraint("Perpendicular", 1, 2))
sketch18.addConstraint(Sketcher.Constraint("Perpendicular", 2, 3))
sketch18.addConstraint(Sketcher.Constraint("Angle", 0, Q("-130 deg")))
sketch18.addConstraint(Sketcher.Constraint("Distance", 0, 5.0))
sketch18.addConstraint(Sketcher.Constraint("Distance", 1, 2.8))
sketch18.addConstraint(Sketcher.Constraint("DistanceY", 0, 2, -1, 1, 31.54168))
sketch18.addConstraint(Sketcher.Constraint("DistanceX", 2, 2, -1, 1, 23.570029))
pocket17 = body.newObject("PartDesign::Pocket", "Pocket016")
pocket17.Profile = sketch18
pocket17.Type = "UpToFirst"
pocket17.Reversed = True

# Sketch on XZ plane
sketch19 = body.newObject("Sketcher::SketchObject", "Sketch018")
sketch19.AttachmentSupport = (doc.getObject("XZ_Plane"), [""])
sketch19.MapMode = "FlatFace"
sketch19.AttachmentOffset = App.Placement(V(0, 0, -3), App.Rotation())
add_polygon(sketch19, [(-10.7, -33.4), (-12.4, -38.1), (-15, -37.1), (-13.3, -32.4)])  # lines 0-3
sketch19.addConstraint(Sketcher.Constraint("Perpendicular", 0, 1))
sketch19.addConstraint(Sketcher.Constraint("Perpendicular", 1, 2))
sketch19.addConstraint(Sketcher.Constraint("Perpendicular", 2, 3))
sketch19.addConstraint(Sketcher.Constraint("Angle", 0, Q("-110 deg")))
sketch19.addConstraint(Sketcher.Constraint("Distance", 0, 5.0))
sketch19.addConstraint(Sketcher.Constraint("Distance", 1, 2.8))
sketch19.addConstraint(Sketcher.Constraint("DistanceY", 3, 2, -1, 1, 33.36807))
sketch19.addConstraint(Sketcher.Constraint("DistanceX", 0, 2, -1, 1, 12.365236))
pocket18 = body.newObject("PartDesign::Pocket", "Pocket017")
pocket18.Profile = sketch19
pocket18.Type = "UpToFirst"
pocket18.Reversed = True

# Sketch on XZ plane
sketch20 = body.newObject("Sketcher::SketchObject", "Sketch019")
sketch20.AttachmentSupport = (doc.getObject("XZ_Plane"), [""])
sketch20.MapMode = "FlatFace"
sketch20.AttachmentOffset = App.Placement(V(0, 0, -3), App.Rotation())
add_polygon(sketch20, [(30.5, -0.8), (29.9, 2.2), (39.8, 3.9), (40.3, 1)])  # lines 0-3
add_polygon(sketch20, [(28.9, 8.1), (28.4, 11.1), (38.2, 12.8), (38.8, 9.8)])  # lines 4-7
sketch20.addConstraint(Sketcher.Constraint("Perpendicular", 0, 1))
sketch20.addConstraint(Sketcher.Constraint("Perpendicular", 1, 2))
sketch20.addConstraint(Sketcher.Constraint("Perpendicular", 2, 3))
sketch20.addConstraint(Sketcher.Constraint("Perpendicular", 3, 4))
sketch20.addConstraint(Sketcher.Constraint("Perpendicular", 4, 5))
sketch20.addConstraint(Sketcher.Constraint("Perpendicular", 5, 6))
sketch20.addConstraint(Sketcher.Constraint("Perpendicular", 6, 7))
sketch20.addConstraint(Sketcher.Constraint("Equal", 2, 4))
sketch20.addConstraint(Sketcher.Constraint("Equal", 3, 5))
sketch20.addConstraint(Sketcher.Constraint("Distance", 0, 3.0))
sketch20.addConstraint(Sketcher.Constraint("Distance", 1, 10.0))
sketch20.addConstraint(Sketcher.Constraint("DistanceX", 4, 2, 1, 2, 11.401999))
sketch20.addConstraint(Sketcher.Constraint("DistanceY", 3, 2, -1, 1, 0.7607))
sketch20.addConstraint(Sketcher.Constraint("DistanceY", -1, 1, 0, 2, 2.194372))
sketch20.addConstraint(Sketcher.Constraint("DistanceY", 1, 2, 4, 2, 7.141038))
sketch20.addConstraint(Sketcher.Constraint("DistanceX", -1, 1, 0, 2, 29.936073))
pocket19 = body.newObject("PartDesign::Pocket", "Pocket018")
pocket19.Profile = sketch20
pocket19.Length = 10
pocket19.Reversed = True

doc.recompute()
